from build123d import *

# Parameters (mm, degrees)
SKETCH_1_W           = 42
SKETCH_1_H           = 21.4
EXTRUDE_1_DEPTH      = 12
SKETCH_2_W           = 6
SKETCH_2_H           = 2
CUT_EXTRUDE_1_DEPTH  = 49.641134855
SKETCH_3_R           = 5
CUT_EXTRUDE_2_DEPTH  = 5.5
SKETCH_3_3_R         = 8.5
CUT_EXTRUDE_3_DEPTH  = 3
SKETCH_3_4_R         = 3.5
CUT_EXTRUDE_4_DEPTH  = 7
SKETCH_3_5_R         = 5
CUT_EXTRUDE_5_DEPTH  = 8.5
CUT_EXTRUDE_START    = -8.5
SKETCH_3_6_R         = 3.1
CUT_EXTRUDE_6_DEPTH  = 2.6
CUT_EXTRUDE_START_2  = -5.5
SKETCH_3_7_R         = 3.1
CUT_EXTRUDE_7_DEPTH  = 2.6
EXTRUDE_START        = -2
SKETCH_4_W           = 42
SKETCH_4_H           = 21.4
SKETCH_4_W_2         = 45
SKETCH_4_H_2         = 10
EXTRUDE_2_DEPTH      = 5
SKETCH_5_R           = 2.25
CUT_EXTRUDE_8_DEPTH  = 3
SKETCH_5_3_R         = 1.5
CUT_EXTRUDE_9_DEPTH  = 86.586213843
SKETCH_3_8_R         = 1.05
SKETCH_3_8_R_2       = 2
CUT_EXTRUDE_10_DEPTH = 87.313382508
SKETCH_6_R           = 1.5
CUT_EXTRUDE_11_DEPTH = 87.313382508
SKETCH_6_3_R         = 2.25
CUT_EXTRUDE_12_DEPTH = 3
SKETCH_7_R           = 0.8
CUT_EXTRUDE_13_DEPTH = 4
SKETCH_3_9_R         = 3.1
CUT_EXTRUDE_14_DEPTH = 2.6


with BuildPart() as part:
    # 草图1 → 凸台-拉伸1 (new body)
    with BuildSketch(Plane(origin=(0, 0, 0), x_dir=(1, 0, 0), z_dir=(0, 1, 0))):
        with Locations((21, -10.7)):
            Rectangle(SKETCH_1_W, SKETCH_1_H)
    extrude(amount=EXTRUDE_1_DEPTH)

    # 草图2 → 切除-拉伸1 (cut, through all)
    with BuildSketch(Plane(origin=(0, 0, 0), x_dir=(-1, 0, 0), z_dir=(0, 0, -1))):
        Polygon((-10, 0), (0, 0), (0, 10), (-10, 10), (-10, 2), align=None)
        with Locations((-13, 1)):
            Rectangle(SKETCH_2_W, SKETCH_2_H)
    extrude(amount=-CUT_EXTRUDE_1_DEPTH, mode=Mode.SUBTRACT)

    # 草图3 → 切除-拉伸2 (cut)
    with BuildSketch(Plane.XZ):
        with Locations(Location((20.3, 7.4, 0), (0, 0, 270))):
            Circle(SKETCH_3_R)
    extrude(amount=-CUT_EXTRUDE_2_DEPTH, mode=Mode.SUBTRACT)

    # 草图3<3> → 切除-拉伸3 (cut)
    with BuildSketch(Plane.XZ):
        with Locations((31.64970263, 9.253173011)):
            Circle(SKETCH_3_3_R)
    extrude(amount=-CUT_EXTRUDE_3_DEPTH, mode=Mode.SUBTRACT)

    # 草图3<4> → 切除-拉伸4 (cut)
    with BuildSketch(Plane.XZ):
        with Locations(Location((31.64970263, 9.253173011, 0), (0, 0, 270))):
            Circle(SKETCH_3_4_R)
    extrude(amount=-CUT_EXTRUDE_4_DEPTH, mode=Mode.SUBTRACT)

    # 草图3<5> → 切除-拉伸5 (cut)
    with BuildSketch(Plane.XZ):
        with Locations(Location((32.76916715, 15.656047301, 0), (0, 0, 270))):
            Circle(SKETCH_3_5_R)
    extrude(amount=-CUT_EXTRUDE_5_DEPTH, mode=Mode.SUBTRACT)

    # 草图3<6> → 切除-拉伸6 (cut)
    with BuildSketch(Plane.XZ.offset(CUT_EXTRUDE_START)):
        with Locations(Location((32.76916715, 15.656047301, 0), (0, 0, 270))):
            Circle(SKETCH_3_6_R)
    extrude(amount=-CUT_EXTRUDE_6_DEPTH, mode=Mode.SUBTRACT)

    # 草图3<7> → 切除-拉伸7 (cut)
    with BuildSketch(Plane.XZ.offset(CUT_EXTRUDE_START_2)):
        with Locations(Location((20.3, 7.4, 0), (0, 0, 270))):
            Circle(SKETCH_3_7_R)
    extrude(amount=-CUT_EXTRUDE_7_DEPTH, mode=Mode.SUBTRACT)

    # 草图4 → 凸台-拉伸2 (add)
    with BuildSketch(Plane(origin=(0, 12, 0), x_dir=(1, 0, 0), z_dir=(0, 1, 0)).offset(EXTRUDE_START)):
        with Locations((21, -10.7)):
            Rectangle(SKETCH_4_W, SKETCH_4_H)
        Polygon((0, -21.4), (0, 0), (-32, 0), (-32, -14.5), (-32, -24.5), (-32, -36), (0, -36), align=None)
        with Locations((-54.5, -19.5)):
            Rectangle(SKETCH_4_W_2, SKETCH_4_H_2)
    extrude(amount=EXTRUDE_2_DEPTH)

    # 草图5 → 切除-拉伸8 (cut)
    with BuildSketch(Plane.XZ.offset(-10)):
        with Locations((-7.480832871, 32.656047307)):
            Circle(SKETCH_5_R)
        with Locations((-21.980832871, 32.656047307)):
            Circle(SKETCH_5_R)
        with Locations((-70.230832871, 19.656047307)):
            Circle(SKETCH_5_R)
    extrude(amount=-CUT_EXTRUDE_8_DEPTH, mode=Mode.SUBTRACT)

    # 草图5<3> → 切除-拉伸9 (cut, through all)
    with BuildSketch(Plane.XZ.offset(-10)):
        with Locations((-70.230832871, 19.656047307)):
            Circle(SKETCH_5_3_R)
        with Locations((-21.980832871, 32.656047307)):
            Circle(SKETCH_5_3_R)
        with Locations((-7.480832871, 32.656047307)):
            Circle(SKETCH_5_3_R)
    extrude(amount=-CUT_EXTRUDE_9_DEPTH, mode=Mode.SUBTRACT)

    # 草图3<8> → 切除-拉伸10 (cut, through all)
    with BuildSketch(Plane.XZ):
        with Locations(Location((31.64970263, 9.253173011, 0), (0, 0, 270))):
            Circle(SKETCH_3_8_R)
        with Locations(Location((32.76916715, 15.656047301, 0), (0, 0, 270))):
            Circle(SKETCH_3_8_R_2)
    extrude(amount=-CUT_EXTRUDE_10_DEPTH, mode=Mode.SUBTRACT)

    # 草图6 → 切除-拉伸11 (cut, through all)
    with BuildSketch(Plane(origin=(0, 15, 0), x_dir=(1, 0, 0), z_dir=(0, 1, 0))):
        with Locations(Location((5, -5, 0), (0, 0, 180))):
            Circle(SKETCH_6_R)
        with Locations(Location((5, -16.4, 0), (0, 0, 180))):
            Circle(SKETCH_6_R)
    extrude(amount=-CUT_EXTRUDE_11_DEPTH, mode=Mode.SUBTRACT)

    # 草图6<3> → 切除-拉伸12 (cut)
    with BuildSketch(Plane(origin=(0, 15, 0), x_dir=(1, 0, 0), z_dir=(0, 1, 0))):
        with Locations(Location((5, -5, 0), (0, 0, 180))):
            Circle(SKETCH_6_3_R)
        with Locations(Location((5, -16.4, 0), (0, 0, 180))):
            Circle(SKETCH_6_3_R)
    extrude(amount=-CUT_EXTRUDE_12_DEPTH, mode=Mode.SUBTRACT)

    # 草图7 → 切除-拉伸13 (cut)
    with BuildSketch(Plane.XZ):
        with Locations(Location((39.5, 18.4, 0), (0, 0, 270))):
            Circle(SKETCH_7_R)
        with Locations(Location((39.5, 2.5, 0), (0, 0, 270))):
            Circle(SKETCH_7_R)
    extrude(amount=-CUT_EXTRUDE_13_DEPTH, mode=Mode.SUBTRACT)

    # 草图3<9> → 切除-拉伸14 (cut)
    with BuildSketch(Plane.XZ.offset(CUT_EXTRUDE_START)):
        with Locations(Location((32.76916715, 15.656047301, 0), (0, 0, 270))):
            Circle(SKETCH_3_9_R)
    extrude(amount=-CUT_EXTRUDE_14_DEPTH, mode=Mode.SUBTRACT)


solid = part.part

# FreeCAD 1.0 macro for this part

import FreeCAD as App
import Part
import Sketcher
Q = App.Units.Quantity


def add_polygon(sketch, points):
    """Adds a closed chain of lines whose ends are joined by coincident constraints."""
    first, n = sketch.GeometryCount, len(points)
    for a, b in zip(points, points[1:] + points[:1]):
        sketch.addGeometry(Part.LineSegment(App.Vector(*a, 0), App.Vector(*b, 0)), False)
    for i in range(n):
        sketch.addConstraint(Sketcher.Constraint("Coincident", first + i, 2, first + (i + 1) % n, 1))

doc = App.newDocument("Part")
body = doc.addObject("PartDesign::Body", "Body")

sketch1 = body.newObject("Sketcher::SketchObject", "Sketch")
sketch1.AttachmentSupport = (doc.getObject("XZ_Plane"), [""])
sketch1.MapMode = "FlatFace"
add_polygon(sketch1, [(0, 0), (0, 21), (42, 21), (42, 0)])
sketch1.addConstraint(Sketcher.Constraint("Vertical", 0))
sketch1.addConstraint(Sketcher.Constraint("Horizontal", 1))
sketch1.addConstraint(Sketcher.Constraint("Vertical", 2))
sketch1.addConstraint(Sketcher.Constraint("Horizontal", 3))
sketch1.addConstraint(Sketcher.Constraint("Coincident", 3, 2, -1, 1))
sketch1.addConstraint(Sketcher.Constraint("DistanceX", 1, 1, 1, 2, Q("42 mm")))
sketch1.addConstraint(Sketcher.Constraint("DistanceY", 0, 1, 0, 2, Q("21.4 mm")))
pad1 = body.newObject("PartDesign::Pad", "Pad")
pad1.Profile = sketch1
pad1.Length = 12
pad1.Reversed = True

sketch2 = body.newObject("Sketcher::SketchObject", "Sketch001")
sketch2.AttachmentSupport = (doc.getObject("XY_Plane"), [""])
sketch2.MapMode = "FlatFace"
add_polygon(sketch2, [(0, 0), (0, 10), (10, 10), (10, 2), (16, 2), (16, 0)])
sketch2.addConstraint(Sketcher.Constraint("Vertical", 0))
sketch2.addConstraint(Sketcher.Constraint("Horizontal", 1))
sketch2.addConstraint(Sketcher.Constraint("Vertical", 2))
sketch2.addConstraint(Sketcher.Constraint("Horizontal", 3))
sketch2.addConstraint(Sketcher.Constraint("Vertical", 4))
sketch2.addConstraint(Sketcher.Constraint("Horizontal", 5))
sketch2.addConstraint(Sketcher.Constraint("Coincident", 5, 2, -1, 1))
sketch2.addConstraint(Sketcher.Constraint("Equal", 1, 0))
sketch2.addConstraint(Sketcher.Constraint("DistanceX", 1, 1, 1, 2, Q("10 mm")))
sketch2.addConstraint(Sketcher.Constraint("DistanceX", 3, 1, 3, 2, Q("6 mm")))
sketch2.addConstraint(Sketcher.Constraint("DistanceY", 2, 2, 2, 1, Q("8 mm")))
pocket1 = body.newObject("PartDesign::Pocket", "Pocket")
pocket1.Profile = sketch2
pocket1.Type = "ThroughAll"
pocket1.Reversed = True

sketch3 = body.newObject("Sketcher::SketchObject", "Sketch002")
sketch3.AttachmentSupport = (doc.getObject("XZ_Plane"), [""])
sketch3.MapMode = "FlatFace"
sketch3.addGeometry(Part.Circle(App.Vector(20, 7, 0), App.Vector(0, 0, 1), 5), False)
sketch3.addConstraint(Sketcher.Constraint("Diameter", 0, Q("10 mm")))
sketch3.addConstraint(Sketcher.Constraint("DistanceX", -1, 1, 0, 3, Q("20.3 mm")))
sketch3.addConstraint(Sketcher.Constraint("DistanceY", -1, 1, 0, 3, Q("7.4 mm")))
pocket2 = body.newObject("PartDesign::Pocket", "Pocket001")
pocket2.Profile = sketch3
pocket2.Length = 5.5

sketch4 = body.newObject("Sketcher::SketchObject", "Sketch003")
sketch4.AttachmentSupport = (doc.getObject("XZ_Plane"), [""])
sketch4.MapMode = "FlatFace"
sketch4.addGeometry(Part.Circle(App.Vector(32, 9, 0), App.Vector(0, 0, 1), 8), False)
sketch4.addConstraint(Sketcher.Constraint("Diameter", 0, Q("17 mm")))
sketch4.addConstraint(Sketcher.Constraint("DistanceX", -1, 1, 0, 3, Q("31.649703 mm")))
sketch4.addConstraint(Sketcher.Constraint("DistanceY", -1, 1, 0, 3, Q("9.253173 mm")))
pocket3 = body.newObject("PartDesign::Pocket", "Pocket002")
pocket3.Profile = sketch4
pocket3.Length = 3

sketch5 = body.newObject("Sketcher::SketchObject", "Sketch004")
sketch5.AttachmentSupport = (doc.getObject("XZ_Plane"), [""])
sketch5.MapMode = "FlatFace"
sketch5.addGeometry(Part.Circle(App.Vector(31.6, 9.3, 0), App.Vector(0, 0, 1), 3.5), False)
sketch5.addConstraint(Sketcher.Constraint("Diameter", 0, Q("7 mm")))
sketch5.addConstraint(Sketcher.Constraint("DistanceX", -1, 1, 0, 3, Q("31.649703 mm")))
sketch5.addConstraint(Sketcher.Constraint("DistanceY", -1, 1, 0, 3, Q("9.253173 mm")))
pocket4 = body.newObject("PartDesign::Pocket", "Pocket003")
pocket4.Profile = sketch5
pocket4.Length = 7

sketch6 = body.newObject("Sketcher::SketchObject", "Sketch005")
sketch6.AttachmentSupport = (doc.getObject("XZ_Plane"), [""])
sketch6.MapMode = "FlatFace"
sketch6.addGeometry(Part.Circle(App.Vector(33, 16, 0), App.Vector(0, 0, 1), 5), False)
sketch6.addConstraint(Sketcher.Constraint("Diameter", 0, Q("10 mm")))
sketch6.addConstraint(Sketcher.Constraint("DistanceX", -1, 1, 0, 3, Q("32.769167 mm")))
sketch6.addConstraint(Sketcher.Constraint("DistanceY", -1, 1, 0, 3, Q("15.656047 mm")))
pocket5 = body.newObject("PartDesign::Pocket", "Pocket004")
pocket5.Profile = sketch6
pocket5.Length = 8.5

sketch7 = body.newObject("Sketcher::SketchObject", "Sketch006")
sketch7.AttachmentSupport = (doc.getObject("XZ_Plane"), [""])
sketch7.MapMode = "FlatFace"
sketch7.AttachmentOffset = App.Placement(App.Vector(0, 0, -8.5), App.Rotation())
sketch7.addGeometry(Part.Circle(App.Vector(32.8, 15.7, 0), App.Vector(0, 0, 1), 3.1), False)
sketch7.addConstraint(Sketcher.Constraint("Diameter", 0, Q("6.2 mm")))
sketch7.addConstraint(Sketcher.Constraint("DistanceX", -1, 1, 0, 3, Q("32.769167 mm")))
sketch7.addConstraint(Sketcher.Constraint("DistanceY", -1, 1, 0, 3, Q("15.656047 mm")))
pocket6 = body.newObject("PartDesign::Pocket", "Pocket005")
pocket6.Profile = sketch7
pocket6.Length = 2.6

sketch8 = body.newObject("Sketcher::SketchObject", "Sketch007")
sketch8.AttachmentSupport = (doc.getObject("XZ_Plane"), [""])
sketch8.MapMode = "FlatFace"
sketch8.AttachmentOffset = App.Placement(App.Vector(0, 0, -5.5), App.Rotation())
sketch8.addGeometry(Part.Circle(App.Vector(20.3, 7.4, 0), App.Vector(0, 0, 1), 3.1), False)
sketch8.addConstraint(Sketcher.Constraint("Diameter", 0, Q("6.2 mm")))
sketch8.addConstraint(Sketcher.Constraint("DistanceX", -1, 1, 0, 3, Q("20.3 mm")))
sketch8.addConstraint(Sketcher.Constraint("DistanceY", -1, 1, 0, 3, Q("7.4 mm")))
pocket7 = body.newObject("PartDesign::Pocket", "Pocket006")
pocket7.Profile = sketch8
pocket7.Length = 2.6

sketch9 = body.newObject("Sketcher::SketchObject", "Sketch008")
sketch9.AttachmentSupport = (doc.getObject("XZ_Plane"), [""])
sketch9.MapMode = "FlatFace"
sketch9.AttachmentOffset = App.Placement(App.Vector(0, 0, -10), App.Rotation())
add_polygon(sketch9, [(0, 21), (42, 21), (42, 0), (-32, 0), (-32, 14), (-77, 14), (-77, 24), (-32, 24), (-32, 36), (0, 36)])
sketch9.addConstraint(Sketcher.Constraint("Horizontal", 0))
sketch9.addConstraint(Sketcher.Constraint("Vertical", 1))
sketch9.addConstraint(Sketcher.Constraint("Horizontal", 2))
sketch9.addConstraint(Sketcher.Constraint("Vertical", 3))
sketch9.addConstraint(Sketcher.Constraint("Horizontal", 4))
sketch9.addConstraint(Sketcher.Constraint("Vertical", 5))
sketch9.addConstraint(Sketcher.Constraint("Horizontal", 6))
sketch9.addConstraint(Sketcher.Constraint("Vertical", 7))
sketch9.addConstraint(Sketcher.Constraint("Horizontal", 8))
sketch9.addConstraint(Sketcher.Constraint("Vertical", 9))
sketch9.addConstraint(Sketcher.Constraint("PointOnObject", 1, 2, -1))
sketch9.addConstraint(Sketcher.Constraint("PointOnObject", 8, 2, -2))
sketch9.addConstraint(Sketcher.Constraint("Vertical", 3, 2, 6, 2))
sketch9.addConstraint(Sketcher.Constraint("DistanceX", 0, 1, 0, 2, Q("42 mm")))
sketch9.addConstraint(Sketcher.Constraint("DistanceX", 2, 2, 2, 1, Q("74 mm")))
sketch9.addConstraint(Sketcher.Constraint("DistanceX", 4, 2, 4, 1, Q("45 mm")))
sketch9.addConstraint(Sketcher.Constraint("DistanceY", 5, 1, 5, 2, Q("10 mm")))
sketch9.addConstraint(Sketcher.Constraint("DistanceY", 1, 2, 1, 1, Q("21.4 mm")))
sketch9.addConstraint(Sketcher.Constraint("DistanceY", 3, 1, 3, 2, Q("14.5 mm")))
sketch9.addConstraint(Sketcher.Constraint("DistanceY", 7, 1, 7, 2, Q("11.5 mm")))
pad2 = body.newObject("PartDesign::Pad", "Pad001")
pad2.Profile = sketch9
pad2.Length = 5
pad2.Reversed = True

sketch10 = body.newObject("Sketcher::SketchObject", "Sketch009")
sketch10.AttachmentSupport = (doc.getObject("XZ_Plane"), [""])
sketch10.MapMode = "FlatFace"
sketch10.AttachmentOffset = App.Placement(App.Vector(0, 0, -10), App.Rotation())
sketch10.addGeometry(Part.Circle(App.Vector(-7.5, 32.7, 0), App.Vector(0, 0, 1), 2.2), False)
sketch10.addGeometry(Part.Circle(App.Vector(-22, 32.7, 0), App.Vector(0, 0, 1), 2.2), False)
sketch10.addGeometry(Part.Circle(App.Vector(-70.2, 19.7, 0), App.Vector(0, 0, 1), 2.2), False)
sketch10.addConstraint(Sketcher.Constraint("Equal", 0, 1))
sketch10.addConstraint(Sketcher.Constraint("Equal", 1, 2))
sketch10.addConstraint(Sketcher.Constraint("Horizontal", 0, 3, 1, 3))
sketch10.addConstraint(Sketcher.Constraint("Diameter", 0, Q("4.5 mm")))
sketch10.addConstraint(Sketcher.Constraint("DistanceY", 2, 3, 1, 3, Q("13 mm")))
sketch10.addConstraint(Sketcher.Constraint("DistanceX", 1, 3, 0, 3, Q("14.5 mm")))
sketch10.addConstraint(Sketcher.Constraint("DistanceX", 2, 3, 1, 3, Q("48.25 mm")))
sketch10.addConstraint(Sketcher.Constraint("DistanceX", 0, 3, -1, 1, Q("7.480833 mm")))
sketch10.addConstraint(Sketcher.Constraint("DistanceY", -1, 1, 0, 3, Q("32.656047 mm")))
pocket8 = body.newObject("PartDesign::Pocket", "Pocket007")
pocket8.Profile = sketch10
pocket8.Length = 3

sketch11 = body.newObject("Sketcher::SketchObject", "Sketch010")
sketch11.AttachmentSupport = (doc.getObject("XZ_Plane"), [""])
sketch11.MapMode = "FlatFace"
sketch11.AttachmentOffset = App.Placement(App.Vector(0, 0, -10), App.Rotation())
sketch11.addGeometry(Part.Circle(App.Vector(-70.2, 19.7, 0), App.Vector(0, 0, 1), 1.5), False)
sketch11.addGeometry(Part.Circle(App.Vector(-22, 32.7, 0), App.Vector(0, 0, 1), 1.5), False)
sketch11.addGeometry(Part.Circle(App.Vector(-7.5, 32.7, 0), App.Vector(0, 0, 1), 1.5), False)
sketch11.addConstraint(Sketcher.Constraint("Equal", 0, 1))
sketch11.addConstraint(Sketcher.Constraint("Equal", 1, 2))
sketch11.addConstraint(Sketcher.Constraint("Horizontal", 1, 3, 2, 3))
sketch11.addConstraint(Sketcher.Constraint("Diameter", 0, Q("3 mm")))
sketch11.addConstraint(Sketcher.Constraint("DistanceY", 0, 3, 1, 3, Q("13 mm")))
sketch11.addConstraint(Sketcher.Constraint("DistanceX", 1, 3, 2, 3, Q("14.5 mm")))
sketch11.addConstraint(Sketcher.Constraint("DistanceX", 0, 3, 1, 3, Q("48.25 mm")))
sketch11.addConstraint(Sketcher.Constraint("DistanceX", 0, 3, -1, 1, Q("70.230833 mm")))
sketch11.addConstraint(Sketcher.Constraint("DistanceY", -1, 1, 0, 3, Q("19.656047 mm")))
pocket9 = body.newObject("PartDesign::Pocket", "Pocket008")
pocket9.Profile = sketch11
pocket9.Type = "ThroughAll"

sketch12 = body.newObject("Sketcher::SketchObject", "Sketch011")
sketch12.AttachmentSupport = (doc.getObject("XZ_Plane"), [""])
sketch12.MapMode = "FlatFace"
sketch12.addGeometry(Part.Circle(App.Vector(31.6, 9.3, 0), App.Vector(0, 0, 1), 1.1), False)
sketch12.addGeometry(Part.Circle(App.Vector(32.8, 15.7, 0), App.Vector(0, 0, 1), 2), False)
sketch12.addConstraint(Sketcher.Constraint("Diameter", 1, Q("4 mm")))
sketch12.addConstraint(Sketcher.Constraint("Diameter", 0, Q("2.1 mm")))
sketch12.addConstraint(Sketcher.Constraint("DistanceX", -1, 1, 0, 3, Q("31.649703 mm")))
sketch12.addConstraint(Sketcher.Constraint("DistanceY", -1, 1, 0, 3, Q("9.253173 mm")))
sketch12.addConstraint(Sketcher.Constraint("DistanceX", -1, 1, 1, 3, Q("32.769167 mm")))
sketch12.addConstraint(Sketcher.Constraint("DistanceY", -1, 1, 1, 3, Q("15.656047 mm")))
pocket10 = body.newObject("PartDesign::Pocket", "Pocket009")
pocket10.Profile = sketch12
pocket10.Type = "ThroughAll"

sketch13 = body.newObject("Sketcher::SketchObject", "Sketch012")
sketch13.AttachmentSupport = (doc.getObject("XZ_Plane"), [""])
sketch13.MapMode = "FlatFace"
sketch13.AttachmentOffset = App.Placement(App.Vector(0, 0, -15), App.Rotation())
sketch13.addGeometry(Part.Circle(App.Vector(5, 5, 0), App.Vector(0, 0, 1), 1.5), False)
sketch13.addGeometry(Part.Circle(App.Vector(5, 16.4, 0), App.Vector(0, 0, 1), 1.5), False)
sketch13.addConstraint(Sketcher.Constraint("Equal", 0, 1))
sketch13.addConstraint(Sketcher.Constraint("Vertical", 0, 3, 1, 3))
sketch13.addConstraint(Sketcher.Constraint("Diameter", 0, Q("3 mm")))
sketch13.addConstraint(Sketcher.Constraint("DistanceX", -1, 1, 0, 3, Q("5 mm")))
sketch13.addConstraint(Sketcher.Constraint("DistanceY", -1, 1, 0, 3, Q("5 mm")))
sketch13.addConstraint(Sketcher.Constraint("DistanceY", -1, 1, 1, 3, Q("16.4 mm")))
pocket11 = body.newObject("PartDesign::Pocket", "Pocket010")
pocket11.Profile = sketch13
pocket11.Type = "ThroughAll"
pocket11.Reversed = True

sketch14 = body.newObject("Sketcher::SketchObject", "Sketch013")
sketch14.AttachmentSupport = (doc.getObject("XZ_Plane"), [""])
sketch14.MapMode = "FlatFace"
sketch14.AttachmentOffset = App.Placement(App.Vector(0, 0, -15), App.Rotation())
sketch14.addGeometry(Part.Circle(App.Vector(5, 5, 0), App.Vector(0, 0, 1), 2.2), False)
sketch14.addGeometry(Part.Circle(App.Vector(5, 16.4, 0), App.Vector(0, 0, 1), 2.2), False)
sketch14.addConstraint(Sketcher.Constraint("Equal", 0, 1))
sketch14.addConstraint(Sketcher.Constraint("Vertical", 0, 3, 1, 3))
sketch14.addConstraint(Sketcher.Constraint("Diameter", 0, Q("4.5 mm")))
sketch14.addConstraint(Sketcher.Constraint("DistanceX", -1, 1, 0, 3, Q("5 mm")))
sketch14.addConstraint(Sketcher.Constraint("DistanceY", -1, 1, 0, 3, Q("5 mm")))
sketch14.addConstraint(Sketcher.Constraint("DistanceY", -1, 1, 1, 3, Q("16.4 mm")))
pocket12 = body.newObject("PartDesign::Pocket", "Pocket011")
pocket12.Profile = sketch14
pocket12.Length = 3
pocket12.Reversed = True

sketch15 = body.newObject("Sketcher::SketchObject", "Sketch014")
sketch15.AttachmentSupport = (doc.getObject("XZ_Plane"), [""])
sketch15.MapMode = "FlatFace"
sketch15.addGeometry(Part.Circle(App.Vector(39.5, 18.4, 0), App.Vector(0, 0, 1), 0.8), False)
sketch15.addGeometry(Part.Circle(App.Vector(39.5, 2.5, 0), App.Vector(0, 0, 1), 0.8), False)
sketch15.addConstraint(Sketcher.Constraint("Equal", 0, 1))
sketch15.addConstraint(Sketcher.Constraint("Vertical", 0, 3, 1, 3))
sketch15.addConstraint(Sketcher.Constraint("Diameter", 0, Q("1.6 mm")))
sketch15.addConstraint(Sketcher.Constraint("DistanceX", -1, 1, 0, 3, Q("39.5 mm")))
sketch15.addConstraint(Sketcher.Constraint("DistanceY", -1, 1, 0, 3, Q("18.4 mm")))
sketch15.addConstraint(Sketcher.Constraint("DistanceY", -1, 1, 1, 3, Q("2.5 mm")))
pocket13 = body.newObject("PartDesign::Pocket", "Pocket012")
pocket13.Profile = sketch15
pocket13.Length = 4

sketch16 = body.newObject("Sketcher::SketchObject", "Sketch015")
sketch16.AttachmentSupport = (doc.getObject("XZ_Plane"), [""])
sketch16.MapMode = "FlatFace"
sketch16.AttachmentOffset = App.Placement(App.Vector(0, 0, -8.5), App.Rotation())
sketch16.addGeometry(Part.Circle(App.Vector(32.8, 15.7, 0), App.Vector(0, 0, 1), 3.1), False)
sketch16.addConstraint(Sketcher.Constraint("Diameter", 0, Q("6.2 mm")))
sketch16.addConstraint(Sketcher.Constraint("DistanceX", -1, 1, 0, 3, Q("32.769167 mm")))
sketch16.addConstraint(Sketcher.Constraint("DistanceY", -1, 1, 0, 3, Q("15.656047 mm")))
pocket14 = body.newObject("PartDesign::Pocket", "Pocket013")
pocket14.Profile = sketch16
pocket14.Length = 2.6

doc.recompute()
